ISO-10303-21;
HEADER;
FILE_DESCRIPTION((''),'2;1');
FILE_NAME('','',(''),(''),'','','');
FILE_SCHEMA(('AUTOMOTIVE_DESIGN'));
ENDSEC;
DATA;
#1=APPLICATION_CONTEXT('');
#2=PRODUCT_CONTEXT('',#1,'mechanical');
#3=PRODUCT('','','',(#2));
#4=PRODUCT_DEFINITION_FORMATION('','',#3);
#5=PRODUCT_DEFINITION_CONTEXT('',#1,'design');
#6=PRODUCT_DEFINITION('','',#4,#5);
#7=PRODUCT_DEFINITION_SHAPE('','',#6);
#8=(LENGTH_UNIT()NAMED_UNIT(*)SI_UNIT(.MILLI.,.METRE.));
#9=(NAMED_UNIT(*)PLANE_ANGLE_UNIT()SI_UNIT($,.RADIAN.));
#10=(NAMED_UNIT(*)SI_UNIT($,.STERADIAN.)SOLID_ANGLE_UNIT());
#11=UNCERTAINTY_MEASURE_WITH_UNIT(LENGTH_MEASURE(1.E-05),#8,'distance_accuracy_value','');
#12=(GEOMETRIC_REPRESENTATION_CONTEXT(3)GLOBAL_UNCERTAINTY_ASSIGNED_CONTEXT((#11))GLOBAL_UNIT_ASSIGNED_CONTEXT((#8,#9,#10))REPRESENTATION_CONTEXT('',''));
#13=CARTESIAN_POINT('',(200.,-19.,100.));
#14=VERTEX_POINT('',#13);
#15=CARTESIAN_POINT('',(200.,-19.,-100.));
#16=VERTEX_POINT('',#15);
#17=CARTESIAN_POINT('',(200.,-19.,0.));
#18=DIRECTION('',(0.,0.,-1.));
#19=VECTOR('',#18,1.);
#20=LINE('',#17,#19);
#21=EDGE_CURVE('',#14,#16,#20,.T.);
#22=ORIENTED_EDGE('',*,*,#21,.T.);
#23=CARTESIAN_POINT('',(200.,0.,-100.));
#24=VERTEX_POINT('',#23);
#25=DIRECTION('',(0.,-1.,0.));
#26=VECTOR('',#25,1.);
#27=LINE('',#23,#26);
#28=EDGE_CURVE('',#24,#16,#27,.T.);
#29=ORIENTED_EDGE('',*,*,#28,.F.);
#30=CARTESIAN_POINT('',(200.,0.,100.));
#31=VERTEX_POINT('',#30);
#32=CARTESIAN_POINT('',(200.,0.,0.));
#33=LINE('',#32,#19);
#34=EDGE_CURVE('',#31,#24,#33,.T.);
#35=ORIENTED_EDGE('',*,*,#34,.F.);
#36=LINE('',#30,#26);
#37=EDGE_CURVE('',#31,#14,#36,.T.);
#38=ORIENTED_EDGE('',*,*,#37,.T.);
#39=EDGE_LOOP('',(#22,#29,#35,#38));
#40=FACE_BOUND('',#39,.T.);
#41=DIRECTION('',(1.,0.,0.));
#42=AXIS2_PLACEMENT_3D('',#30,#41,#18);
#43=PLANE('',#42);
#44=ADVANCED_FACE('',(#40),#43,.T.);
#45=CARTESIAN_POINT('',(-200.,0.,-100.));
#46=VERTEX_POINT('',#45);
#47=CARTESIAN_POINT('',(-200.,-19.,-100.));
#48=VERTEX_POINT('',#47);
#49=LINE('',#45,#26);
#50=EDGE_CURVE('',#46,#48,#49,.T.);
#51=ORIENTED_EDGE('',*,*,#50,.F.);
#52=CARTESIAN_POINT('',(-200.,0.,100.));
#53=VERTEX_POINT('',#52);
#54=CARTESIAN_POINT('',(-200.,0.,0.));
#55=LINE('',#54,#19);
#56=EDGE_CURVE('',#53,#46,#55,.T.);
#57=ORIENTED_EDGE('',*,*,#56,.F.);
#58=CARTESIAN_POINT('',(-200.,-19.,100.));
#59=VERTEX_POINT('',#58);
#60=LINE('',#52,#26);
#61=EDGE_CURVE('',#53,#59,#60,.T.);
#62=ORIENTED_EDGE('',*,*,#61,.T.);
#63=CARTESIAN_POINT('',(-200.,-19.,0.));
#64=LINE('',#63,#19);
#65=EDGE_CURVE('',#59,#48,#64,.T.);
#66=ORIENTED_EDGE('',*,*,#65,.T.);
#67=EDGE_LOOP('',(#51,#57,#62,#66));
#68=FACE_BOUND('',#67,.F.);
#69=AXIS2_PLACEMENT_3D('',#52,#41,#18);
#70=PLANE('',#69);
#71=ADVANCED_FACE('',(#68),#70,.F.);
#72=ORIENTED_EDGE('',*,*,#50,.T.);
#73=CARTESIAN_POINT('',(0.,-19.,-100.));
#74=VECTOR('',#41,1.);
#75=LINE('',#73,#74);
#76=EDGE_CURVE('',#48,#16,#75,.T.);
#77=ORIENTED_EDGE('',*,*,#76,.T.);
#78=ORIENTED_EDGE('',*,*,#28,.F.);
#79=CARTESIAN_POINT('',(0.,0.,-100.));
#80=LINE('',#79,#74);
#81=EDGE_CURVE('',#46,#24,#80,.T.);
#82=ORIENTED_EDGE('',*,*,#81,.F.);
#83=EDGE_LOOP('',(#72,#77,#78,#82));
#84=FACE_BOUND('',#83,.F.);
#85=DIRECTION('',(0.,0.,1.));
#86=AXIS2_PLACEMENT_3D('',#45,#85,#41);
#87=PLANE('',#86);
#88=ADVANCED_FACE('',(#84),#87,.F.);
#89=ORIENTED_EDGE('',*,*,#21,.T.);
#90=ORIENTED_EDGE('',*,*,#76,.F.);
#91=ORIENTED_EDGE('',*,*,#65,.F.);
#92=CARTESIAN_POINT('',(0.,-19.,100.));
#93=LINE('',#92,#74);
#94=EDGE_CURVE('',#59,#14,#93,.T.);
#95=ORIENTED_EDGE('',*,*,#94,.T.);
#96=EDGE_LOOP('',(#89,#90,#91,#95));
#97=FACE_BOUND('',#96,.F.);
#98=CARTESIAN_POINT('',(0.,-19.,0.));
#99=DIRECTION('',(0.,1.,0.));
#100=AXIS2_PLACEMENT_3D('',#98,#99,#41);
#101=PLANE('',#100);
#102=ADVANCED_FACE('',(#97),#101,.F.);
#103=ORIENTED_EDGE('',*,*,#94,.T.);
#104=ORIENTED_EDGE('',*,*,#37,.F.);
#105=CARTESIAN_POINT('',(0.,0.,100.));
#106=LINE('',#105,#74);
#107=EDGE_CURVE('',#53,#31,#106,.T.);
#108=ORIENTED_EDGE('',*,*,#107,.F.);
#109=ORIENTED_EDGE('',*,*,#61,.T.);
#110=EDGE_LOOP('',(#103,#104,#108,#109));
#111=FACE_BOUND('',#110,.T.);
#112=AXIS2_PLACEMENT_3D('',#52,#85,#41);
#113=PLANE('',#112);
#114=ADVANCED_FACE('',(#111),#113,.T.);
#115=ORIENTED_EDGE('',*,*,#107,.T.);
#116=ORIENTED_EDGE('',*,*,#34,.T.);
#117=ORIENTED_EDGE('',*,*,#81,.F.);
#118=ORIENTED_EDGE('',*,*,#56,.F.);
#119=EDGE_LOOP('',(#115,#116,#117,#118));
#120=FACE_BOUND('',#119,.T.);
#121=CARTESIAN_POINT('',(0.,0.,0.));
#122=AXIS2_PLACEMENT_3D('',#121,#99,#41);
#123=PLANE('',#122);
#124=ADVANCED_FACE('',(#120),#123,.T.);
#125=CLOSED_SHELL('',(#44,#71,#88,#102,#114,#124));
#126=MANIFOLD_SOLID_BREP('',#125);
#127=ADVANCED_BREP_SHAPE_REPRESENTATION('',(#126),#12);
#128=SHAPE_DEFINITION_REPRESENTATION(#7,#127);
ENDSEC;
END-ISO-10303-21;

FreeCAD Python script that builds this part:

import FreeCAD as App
import Part
import Sketcher

V = App.Vector


def add_polygon(sketch, points):
    """Adds a closed chain of lines whose ends are joined by coincident constraints."""
    first, n = sketch.GeometryCount, len(points)
    for a, b in zip(points, points[1:] + points[:1]):
        sketch.addGeometry(Part.LineSegment(App.Vector(*a, 0), App.Vector(*b, 0)), False)
    for i in range(n):
        sketch.addConstraint(Sketcher.Constraint("Coincident", first + i, 2, first + (i + 1) % n, 1))

doc = App.newDocument("Part")
params = doc.addObject("Spreadsheet::Sheet", "Params")
for row, (alias, value) in enumerate([
    ("sketch1_width", "400 mm"),
    ("sketch1_height", "200 mm"),
    ("pad1_length", "19 mm"),
], start=1):
    params.set(f"A{row}", alias)
    params.set(f"B{row}", "=" + value)
    params.setAlias(f"B{row}", alias)

body = doc.addObject("PartDesign::Body", "Body")

# Sketch on XZ plane
sketch1 = body.newObject("Sketcher::SketchObject", "Sketch")
sketch1.AttachmentSupport = (doc.getObject("XZ_Plane"), [""])
sketch1.MapMode = "FlatFace"
add_polygon(sketch1, [(-200, -100), (-200, 100), (200, 100), (200, -100)])  # lines 0-3
sketch1.addConstraint(Sketcher.Constraint("Vertical", 0))
sketch1.addConstraint(Sketcher.Constraint("Horizontal", 1))
sketch1.addConstraint(Sketcher.Constraint("Vertical", 2))
sketch1.addConstraint(Sketcher.Constraint("Horizontal", 3))
sketch1.addConstraint(Sketcher.Constraint("Symmetric", 0, 2, 2, 2, -1, 1))
sketch1.addConstraint(Sketcher.Constraint("DistanceX", 1, 1, 1, 2, 400.0))
sketch1.addConstraint(Sketcher.Constraint("DistanceY", 0, 1, 0, 2, 200.0))
sketch1.setExpression("Constraints[9]", "Params.sketch1_width")
sketch1.setExpression("Constraints[10]", "Params.sketch1_height")
pad1 = body.newObject("PartDesign::Pad", "Pad")
pad1.Profile = sketch1
pad1.setExpression("Length", "Params.pad1_length")

doc.recompute()
